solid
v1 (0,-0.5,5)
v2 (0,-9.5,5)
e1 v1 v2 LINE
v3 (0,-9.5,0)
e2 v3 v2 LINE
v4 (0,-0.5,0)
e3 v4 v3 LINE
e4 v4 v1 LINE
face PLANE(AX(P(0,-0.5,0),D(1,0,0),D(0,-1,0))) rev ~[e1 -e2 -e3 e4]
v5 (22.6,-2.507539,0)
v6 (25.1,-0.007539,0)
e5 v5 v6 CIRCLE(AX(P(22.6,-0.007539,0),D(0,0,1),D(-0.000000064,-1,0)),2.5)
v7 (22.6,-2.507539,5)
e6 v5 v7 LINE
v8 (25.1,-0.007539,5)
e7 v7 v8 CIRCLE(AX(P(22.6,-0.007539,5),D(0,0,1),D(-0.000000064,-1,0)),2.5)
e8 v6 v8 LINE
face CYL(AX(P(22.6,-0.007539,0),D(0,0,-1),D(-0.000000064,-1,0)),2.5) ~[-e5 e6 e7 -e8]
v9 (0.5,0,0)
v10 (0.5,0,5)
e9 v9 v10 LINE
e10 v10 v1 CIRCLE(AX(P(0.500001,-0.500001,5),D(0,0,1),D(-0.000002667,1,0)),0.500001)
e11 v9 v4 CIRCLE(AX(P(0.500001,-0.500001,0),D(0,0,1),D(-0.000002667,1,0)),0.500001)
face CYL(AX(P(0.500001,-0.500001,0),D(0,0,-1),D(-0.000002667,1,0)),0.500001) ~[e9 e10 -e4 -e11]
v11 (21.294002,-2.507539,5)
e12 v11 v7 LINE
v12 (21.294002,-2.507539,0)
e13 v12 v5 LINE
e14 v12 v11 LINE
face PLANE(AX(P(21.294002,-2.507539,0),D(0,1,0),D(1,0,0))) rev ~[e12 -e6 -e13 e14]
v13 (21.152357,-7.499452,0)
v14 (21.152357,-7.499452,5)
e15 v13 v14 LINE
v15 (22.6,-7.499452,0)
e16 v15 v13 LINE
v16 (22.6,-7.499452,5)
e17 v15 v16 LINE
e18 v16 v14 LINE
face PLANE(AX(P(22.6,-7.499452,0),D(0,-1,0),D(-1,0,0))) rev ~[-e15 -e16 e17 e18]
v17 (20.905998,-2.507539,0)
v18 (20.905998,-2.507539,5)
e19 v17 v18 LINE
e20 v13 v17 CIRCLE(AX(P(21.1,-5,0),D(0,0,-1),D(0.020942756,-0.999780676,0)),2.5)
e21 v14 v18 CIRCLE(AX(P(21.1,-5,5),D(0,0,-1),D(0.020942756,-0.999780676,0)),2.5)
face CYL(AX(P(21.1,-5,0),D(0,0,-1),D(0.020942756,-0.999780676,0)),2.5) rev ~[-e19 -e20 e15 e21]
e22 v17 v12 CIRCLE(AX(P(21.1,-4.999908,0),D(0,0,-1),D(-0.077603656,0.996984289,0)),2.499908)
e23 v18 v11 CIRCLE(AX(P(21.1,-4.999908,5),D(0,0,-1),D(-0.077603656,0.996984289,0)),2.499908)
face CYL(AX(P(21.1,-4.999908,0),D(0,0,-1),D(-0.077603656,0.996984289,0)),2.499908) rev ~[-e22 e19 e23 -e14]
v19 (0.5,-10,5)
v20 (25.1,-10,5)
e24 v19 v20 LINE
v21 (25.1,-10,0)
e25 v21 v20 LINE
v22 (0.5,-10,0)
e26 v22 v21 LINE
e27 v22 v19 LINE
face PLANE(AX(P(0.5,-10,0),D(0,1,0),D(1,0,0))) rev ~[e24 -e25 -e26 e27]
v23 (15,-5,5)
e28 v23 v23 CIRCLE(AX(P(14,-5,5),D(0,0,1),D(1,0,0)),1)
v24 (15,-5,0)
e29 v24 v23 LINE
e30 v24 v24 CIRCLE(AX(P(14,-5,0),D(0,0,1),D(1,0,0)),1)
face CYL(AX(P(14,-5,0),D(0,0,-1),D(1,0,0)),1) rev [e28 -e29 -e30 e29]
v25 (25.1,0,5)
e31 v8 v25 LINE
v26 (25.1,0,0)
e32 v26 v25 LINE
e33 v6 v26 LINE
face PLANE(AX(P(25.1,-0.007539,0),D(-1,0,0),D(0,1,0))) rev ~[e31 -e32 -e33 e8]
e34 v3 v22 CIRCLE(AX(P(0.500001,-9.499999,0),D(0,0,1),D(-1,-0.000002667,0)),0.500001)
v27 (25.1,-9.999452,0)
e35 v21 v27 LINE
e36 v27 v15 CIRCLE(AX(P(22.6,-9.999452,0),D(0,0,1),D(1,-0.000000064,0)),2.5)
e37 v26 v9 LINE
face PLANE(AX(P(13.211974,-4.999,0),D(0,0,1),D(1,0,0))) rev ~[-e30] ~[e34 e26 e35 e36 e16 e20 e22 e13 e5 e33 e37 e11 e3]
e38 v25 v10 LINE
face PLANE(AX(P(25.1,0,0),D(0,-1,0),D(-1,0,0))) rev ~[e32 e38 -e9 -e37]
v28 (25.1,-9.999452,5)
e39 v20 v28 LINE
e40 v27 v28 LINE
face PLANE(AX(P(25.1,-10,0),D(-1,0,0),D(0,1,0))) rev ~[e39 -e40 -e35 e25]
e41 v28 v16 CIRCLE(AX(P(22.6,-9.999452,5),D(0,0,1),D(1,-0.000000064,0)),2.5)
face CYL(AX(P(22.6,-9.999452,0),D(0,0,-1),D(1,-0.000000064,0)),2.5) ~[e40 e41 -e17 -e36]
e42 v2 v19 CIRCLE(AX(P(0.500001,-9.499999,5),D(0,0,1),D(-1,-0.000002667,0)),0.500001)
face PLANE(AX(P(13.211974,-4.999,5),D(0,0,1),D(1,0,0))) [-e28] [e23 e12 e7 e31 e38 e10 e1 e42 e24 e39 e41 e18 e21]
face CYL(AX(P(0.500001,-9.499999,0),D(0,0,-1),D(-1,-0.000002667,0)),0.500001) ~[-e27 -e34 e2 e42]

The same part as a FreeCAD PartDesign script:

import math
import FreeCAD as App
import Part
import Sketcher
from FreeCAD import Vector

doc = App.newDocument("Part")
body = doc.addObject("PartDesign::Body", "Body")

sketch1 = doc.addObject("Sketcher::SketchObject", "Sketch")
body.addObject(sketch1)
sketch1.AttachmentSupport = (doc.XY_Plane, [""])
sketch1.MapMode = "FlatFace"
sketch1.addGeometry([
    Part.LineSegment(Vector(25.1, 0, 0), Vector(0.5, 0, 0)),
    Part.ArcOfCircle(Part.Circle(Vector(0.500001, -0.500001, 0), Vector(0, 0, 1), 0.500001), math.radians(90.000153), math.radians(179.999847)),
    Part.LineSegment(Vector(0, -0.5, 0), Vector(0, -9.5, 0)),
    Part.ArcOfCircle(Part.Circle(Vector(0.500001, -9.499999, 0), Vector(0, 0, 1), 0.500001), math.radians(-179.999847), math.radians(-90.000153)),
    Part.LineSegment(Vector(0.5, -10, 0), Vector(25.1, -10, 0)),
    Part.LineSegment(Vector(25.1, -10, 0), Vector(25.1, -9.999452, 0)),
    Part.ArcOfCircle(Part.Circle(Vector(22.6, -9.999452, 0), Vector(0, 0, 1), 2.5), math.radians(-0.000004), math.radians(90.000004)),
    Part.LineSegment(Vector(22.6, -7.499452, 0), Vector(21.152357, -7.499452, 0)),
    Part.ArcOfCircle(Part.Circle(Vector(21.1, -5, 0), Vector(0, 0, 1), 2.5), math.radians(94.450675), math.radians(271.200019)),
    Part.ArcOfCircle(Part.Circle(Vector(21.1, -4.999908, 0), Vector(0, 0, 1), 2.499908), math.radians(85.549163), math.radians(94.450837)),
    Part.LineSegment(Vector(21.294002, -2.507539, 0), Vector(22.6, -2.507539, 0)),
    Part.ArcOfCircle(Part.Circle(Vector(22.6, -0.007539, 0), Vector(0, 0, 1), 2.5), math.radians(-90.000004), math.radians(0.000004)),
    Part.LineSegment(Vector(25.1, -0.007539, 0), Vector(25.1, 0, 0)),
    Part.Circle(Vector(14, -5, 0), Vector(0, 0, 1), 1),
], False)
sketch1.addConstraint([
    Sketcher.Constraint("Coincident", 0, 2, 1, 1),
    Sketcher.Constraint("Coincident", 1, 2, 2, 1),
    Sketcher.Constraint("Coincident", 2, 2, 3, 1),
    Sketcher.Constraint("Coincident", 3, 2, 4, 1),
    Sketcher.Constraint("Coincident", 4, 2, 5, 1),
    Sketcher.Constraint("Tangent", 5, 2, 6, 1),
    Sketcher.Constraint("Tangent", 6, 2, 7, 1),
    Sketcher.Constraint("Coincident", 7, 2, 8, 2),
    Sketcher.Constraint("Coincident", 8, 1, 9, 2),
    Sketcher.Constraint("Coincident", 9, 1, 10, 1),
    Sketcher.Constraint("Tangent", 10, 2, 11, 1),
    Sketcher.Constraint("Tangent", 11, 2, 12, 1),
    Sketcher.Constraint("Coincident", 12, 2, 0, 1),
    Sketcher.Constraint("Horizontal", 0),
    Sketcher.Constraint("Vertical", 2),
    Sketcher.Constraint("Horizontal", 4),
    Sketcher.Constraint("Horizontal", 7),
    Sketcher.Constraint("Horizontal", 10),
    Sketcher.Constraint("Vertical", 12),
    Sketcher.Constraint("Equal", 1, 3),
    Sketcher.Constraint("Equal", 6, 8),
    Sketcher.Constraint("Equal", 8, 11),
    Sketcher.Constraint("PointOnObject", 0, 2, -1),
    Sketcher.Constraint("PointOnObject", 1, 2, -2),
    Sketcher.Constraint("Horizontal", 8, 3, 13, 3),
    Sketcher.Constraint("Horizontal", 3, 3, 2, 2),
    Sketcher.Constraint("Horizontal", 6, 3, 5, 2),
    Sketcher.Constraint("Horizontal", 8, 1, 9, 1),
    Sketcher.Constraint("Vertical", 8, 3, 9, 3),
    Sketcher.Constraint("Vertical", 6, 3, 11, 3),
    Sketcher.Constraint("Vertical", 3, 3, 0, 2),
    Sketcher.Constraint("Vertical", 0, 2, 3, 2),
    Sketcher.Constraint("Diameter", 13, 2.0),
    Sketcher.Constraint("Radius", 1, 0.500001),
    Sketcher.Constraint("Radius", 6, 2.5),
    Sketcher.Constraint("DistanceY", 2, 2, 2, 1, 9.0),
    Sketcher.Constraint("DistanceX", 0, 2, 0, 1, 24.6),
    Sketcher.Constraint("DistanceY", 8, 3, -1, 1, 5.0),
    Sketcher.Constraint("DistanceX", -1, 1, 13, 3, 14.0),
    Sketcher.Constraint("DistanceY", 3, 2, -1, 1, 10.0),
    Sketcher.Constraint("DistanceX", 8, 3, 4, 2, 4.0),
    Sketcher.Constraint("DistanceX", 10, 1, 10, 2, 1.305998),
    Sketcher.Constraint("Radius", 9, 2.499908),
    Sketcher.Constraint("DistanceY", 5, 1, 5, 2, 0.000548),
])
pad1 = doc.addObject("PartDesign::Pad", "Pad")
body.addObject(pad1)
pad1.Profile = sketch1
pad1.Length = 5

doc.recompute()
